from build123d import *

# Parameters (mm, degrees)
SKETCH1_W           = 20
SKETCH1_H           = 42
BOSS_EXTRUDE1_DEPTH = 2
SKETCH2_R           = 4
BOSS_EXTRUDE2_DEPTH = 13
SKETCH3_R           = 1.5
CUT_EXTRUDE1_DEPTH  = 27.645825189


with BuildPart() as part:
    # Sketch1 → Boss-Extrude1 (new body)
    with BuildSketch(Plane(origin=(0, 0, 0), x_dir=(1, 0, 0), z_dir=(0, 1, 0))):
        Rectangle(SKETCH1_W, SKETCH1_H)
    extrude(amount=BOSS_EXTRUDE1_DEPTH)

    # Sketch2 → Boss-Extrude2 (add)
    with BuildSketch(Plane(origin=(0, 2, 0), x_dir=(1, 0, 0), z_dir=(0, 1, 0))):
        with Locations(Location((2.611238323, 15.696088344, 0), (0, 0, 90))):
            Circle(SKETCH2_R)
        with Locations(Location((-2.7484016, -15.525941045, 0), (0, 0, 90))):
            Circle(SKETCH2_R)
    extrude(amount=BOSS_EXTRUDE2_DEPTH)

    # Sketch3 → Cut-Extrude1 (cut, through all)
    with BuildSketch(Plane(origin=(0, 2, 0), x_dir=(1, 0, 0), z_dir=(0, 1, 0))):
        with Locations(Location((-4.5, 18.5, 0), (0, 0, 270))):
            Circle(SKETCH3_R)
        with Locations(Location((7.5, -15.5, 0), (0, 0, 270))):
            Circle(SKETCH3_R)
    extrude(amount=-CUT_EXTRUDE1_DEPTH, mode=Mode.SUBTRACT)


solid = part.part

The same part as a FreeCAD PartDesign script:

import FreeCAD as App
import Part
import Sketcher
from FreeCAD import Vector
Q = App.Units.Quantity


def add_polygon(sketch, points):
    """Adds a closed chain of lines whose ends are joined by coincident constraints."""
    first, n = sketch.GeometryCount, len(points)
    for a, b in zip(points, points[1:] + points[:1]):
        sketch.addGeometry(Part.LineSegment(App.Vector(*a, 0), App.Vector(*b, 0)), False)
    for i in range(n):
        sketch.addConstraint(Sketcher.Constraint("Coincident", first + i, 2, first + (i + 1) % n, 1))

doc = App.newDocument("Part")
params = doc.addObject("Spreadsheet::Sheet", "Params")
for row, (alias, value) in enumerate([
    ("sketch1_width", "20 mm"),
    ("sketch1_height", "42 mm"),
    ("pad1_length", "2 mm"),
    ("sketch2_diameter", "8 mm"),
    ("pad2_length", "13 mm"),
    ("sketch3_diameter", "3 mm"),
], start=1):
    params.set(f"A{row}", alias)
    params.set(f"B{row}", "=" + value)
    params.setAlias(f"B{row}", alias)

body = doc.addObject("PartDesign::Body", "Body")

# Sketch on XZ plane
sketch1 = body.newObject("Sketcher::SketchObject", "Sketch")
sketch1.AttachmentSupport = (doc.getObject("XZ_Plane"), [""])
sketch1.MapMode = "FlatFace"
add_polygon(sketch1, [(-10, -21), (-10, 21), (10, 21), (10, -21)])  # lines 0-3
sketch1.addConstraint([
    Sketcher.Constraint("Vertical", 0),
    Sketcher.Constraint("Horizontal", 1),
    Sketcher.Constraint("Vertical", 2),
    Sketcher.Constraint("Horizontal", 3),
    Sketcher.Constraint("Symmetric", 0, 2, 2, 2, -1, 1),
    Sketcher.Constraint("DistanceX", 1, 1, 1, 2, Q("20 mm")),
    Sketcher.Constraint("DistanceY", 0, 1, 0, 2, Q("42 mm")),
])
sketch1.setExpression("Constraints[9]", "Params.sketch1_width")
sketch1.setExpression("Constraints[10]", "Params.sketch1_height")
pad1 = body.newObject("PartDesign::Pad", "Pad")
pad1.Profile = sketch1
pad1.setExpression("Length", "Params.pad1_length")
pad1.Reversed = True

# Sketch on XZ plane
sketch2 = body.newObject("Sketcher::SketchObject", "Sketch001")
sketch2.AttachmentSupport = (doc.getObject("XZ_Plane"), [""])
sketch2.MapMode = "FlatFace"
sketch2.AttachmentOffset = App.Placement(Vector(0, 0, -2), App.Rotation())
sketch2.addGeometry([
    Part.Circle(Vector(2.611238, -15.696088, 0), Vector(0, 0, 1), 4),
    Part.Circle(Vector(-2.748402, 15.525941, 0), Vector(0, 0, 1), 4),
], False)
sketch2.addConstraint([
    Sketcher.Constraint("Equal", 0, 1),
    Sketcher.Constraint("Diameter", 0, Q("8 mm")),
    Sketcher.Constraint("DistanceX", 1, 3, -1, 1, Q("2.748402 mm")),
    Sketcher.Constraint("DistanceX", -1, 1, 0, 3, Q("2.611238 mm")),
    Sketcher.Constraint("DistanceY", 0, 3, -1, 1, Q("15.696088 mm")),
    Sketcher.Constraint("DistanceY", -1, 1, 1, 3, Q("15.525941 mm")),
])
sketch2.setExpression("Constraints[1]", "Params.sketch2_diameter")
pad2 = body.newObject("PartDesign::Pad", "Pad001")
pad2.Profile = sketch2
pad2.setExpression("Length", "Params.pad2_length")
pad2.Reversed = True

# Sketch on XZ plane
sketch3 = body.newObject("Sketcher::SketchObject", "Sketch002")
sketch3.AttachmentSupport = (doc.getObject("XZ_Plane"), [""])
sketch3.MapMode = "FlatFace"
sketch3.AttachmentOffset = App.Placement(Vector(0, 0, -2), App.Rotation())
sketch3.addGeometry([
    Part.Circle(Vector(-4.5, -18.5, 0), Vector(0, 0, 1), 1.5),
    Part.Circle(Vector(7.5, 15.5, 0), Vector(0, 0, 1), 1.5),
], False)
sketch3.addConstraint([
    Sketcher.Constraint("Equal", 0, 1),
    Sketcher.Constraint("Diameter", 0, Q("3 mm")),
    Sketcher.Constraint("DistanceX", 0, 3, 1, 3, Q("12 mm")),
    Sketcher.Constraint("DistanceY", 0, 3, 1, 3, Q("34 mm")),
    Sketcher.Constraint("DistanceX", 0, 3, -1, 1, Q("4.5 mm")),
    Sketcher.Constraint("DistanceY", 0, 3, -1, 1, Q("18.5 mm")),
])
sketch3.setExpression("Constraints[1]", "Params.sketch3_diameter")
pocket1 = body.newObject("PartDesign::Pocket", "Pocket")
pocket1.Profile = sketch3
pocket1.Type = "ThroughAll"
pocket1.Reversed = True

doc.recompute()
